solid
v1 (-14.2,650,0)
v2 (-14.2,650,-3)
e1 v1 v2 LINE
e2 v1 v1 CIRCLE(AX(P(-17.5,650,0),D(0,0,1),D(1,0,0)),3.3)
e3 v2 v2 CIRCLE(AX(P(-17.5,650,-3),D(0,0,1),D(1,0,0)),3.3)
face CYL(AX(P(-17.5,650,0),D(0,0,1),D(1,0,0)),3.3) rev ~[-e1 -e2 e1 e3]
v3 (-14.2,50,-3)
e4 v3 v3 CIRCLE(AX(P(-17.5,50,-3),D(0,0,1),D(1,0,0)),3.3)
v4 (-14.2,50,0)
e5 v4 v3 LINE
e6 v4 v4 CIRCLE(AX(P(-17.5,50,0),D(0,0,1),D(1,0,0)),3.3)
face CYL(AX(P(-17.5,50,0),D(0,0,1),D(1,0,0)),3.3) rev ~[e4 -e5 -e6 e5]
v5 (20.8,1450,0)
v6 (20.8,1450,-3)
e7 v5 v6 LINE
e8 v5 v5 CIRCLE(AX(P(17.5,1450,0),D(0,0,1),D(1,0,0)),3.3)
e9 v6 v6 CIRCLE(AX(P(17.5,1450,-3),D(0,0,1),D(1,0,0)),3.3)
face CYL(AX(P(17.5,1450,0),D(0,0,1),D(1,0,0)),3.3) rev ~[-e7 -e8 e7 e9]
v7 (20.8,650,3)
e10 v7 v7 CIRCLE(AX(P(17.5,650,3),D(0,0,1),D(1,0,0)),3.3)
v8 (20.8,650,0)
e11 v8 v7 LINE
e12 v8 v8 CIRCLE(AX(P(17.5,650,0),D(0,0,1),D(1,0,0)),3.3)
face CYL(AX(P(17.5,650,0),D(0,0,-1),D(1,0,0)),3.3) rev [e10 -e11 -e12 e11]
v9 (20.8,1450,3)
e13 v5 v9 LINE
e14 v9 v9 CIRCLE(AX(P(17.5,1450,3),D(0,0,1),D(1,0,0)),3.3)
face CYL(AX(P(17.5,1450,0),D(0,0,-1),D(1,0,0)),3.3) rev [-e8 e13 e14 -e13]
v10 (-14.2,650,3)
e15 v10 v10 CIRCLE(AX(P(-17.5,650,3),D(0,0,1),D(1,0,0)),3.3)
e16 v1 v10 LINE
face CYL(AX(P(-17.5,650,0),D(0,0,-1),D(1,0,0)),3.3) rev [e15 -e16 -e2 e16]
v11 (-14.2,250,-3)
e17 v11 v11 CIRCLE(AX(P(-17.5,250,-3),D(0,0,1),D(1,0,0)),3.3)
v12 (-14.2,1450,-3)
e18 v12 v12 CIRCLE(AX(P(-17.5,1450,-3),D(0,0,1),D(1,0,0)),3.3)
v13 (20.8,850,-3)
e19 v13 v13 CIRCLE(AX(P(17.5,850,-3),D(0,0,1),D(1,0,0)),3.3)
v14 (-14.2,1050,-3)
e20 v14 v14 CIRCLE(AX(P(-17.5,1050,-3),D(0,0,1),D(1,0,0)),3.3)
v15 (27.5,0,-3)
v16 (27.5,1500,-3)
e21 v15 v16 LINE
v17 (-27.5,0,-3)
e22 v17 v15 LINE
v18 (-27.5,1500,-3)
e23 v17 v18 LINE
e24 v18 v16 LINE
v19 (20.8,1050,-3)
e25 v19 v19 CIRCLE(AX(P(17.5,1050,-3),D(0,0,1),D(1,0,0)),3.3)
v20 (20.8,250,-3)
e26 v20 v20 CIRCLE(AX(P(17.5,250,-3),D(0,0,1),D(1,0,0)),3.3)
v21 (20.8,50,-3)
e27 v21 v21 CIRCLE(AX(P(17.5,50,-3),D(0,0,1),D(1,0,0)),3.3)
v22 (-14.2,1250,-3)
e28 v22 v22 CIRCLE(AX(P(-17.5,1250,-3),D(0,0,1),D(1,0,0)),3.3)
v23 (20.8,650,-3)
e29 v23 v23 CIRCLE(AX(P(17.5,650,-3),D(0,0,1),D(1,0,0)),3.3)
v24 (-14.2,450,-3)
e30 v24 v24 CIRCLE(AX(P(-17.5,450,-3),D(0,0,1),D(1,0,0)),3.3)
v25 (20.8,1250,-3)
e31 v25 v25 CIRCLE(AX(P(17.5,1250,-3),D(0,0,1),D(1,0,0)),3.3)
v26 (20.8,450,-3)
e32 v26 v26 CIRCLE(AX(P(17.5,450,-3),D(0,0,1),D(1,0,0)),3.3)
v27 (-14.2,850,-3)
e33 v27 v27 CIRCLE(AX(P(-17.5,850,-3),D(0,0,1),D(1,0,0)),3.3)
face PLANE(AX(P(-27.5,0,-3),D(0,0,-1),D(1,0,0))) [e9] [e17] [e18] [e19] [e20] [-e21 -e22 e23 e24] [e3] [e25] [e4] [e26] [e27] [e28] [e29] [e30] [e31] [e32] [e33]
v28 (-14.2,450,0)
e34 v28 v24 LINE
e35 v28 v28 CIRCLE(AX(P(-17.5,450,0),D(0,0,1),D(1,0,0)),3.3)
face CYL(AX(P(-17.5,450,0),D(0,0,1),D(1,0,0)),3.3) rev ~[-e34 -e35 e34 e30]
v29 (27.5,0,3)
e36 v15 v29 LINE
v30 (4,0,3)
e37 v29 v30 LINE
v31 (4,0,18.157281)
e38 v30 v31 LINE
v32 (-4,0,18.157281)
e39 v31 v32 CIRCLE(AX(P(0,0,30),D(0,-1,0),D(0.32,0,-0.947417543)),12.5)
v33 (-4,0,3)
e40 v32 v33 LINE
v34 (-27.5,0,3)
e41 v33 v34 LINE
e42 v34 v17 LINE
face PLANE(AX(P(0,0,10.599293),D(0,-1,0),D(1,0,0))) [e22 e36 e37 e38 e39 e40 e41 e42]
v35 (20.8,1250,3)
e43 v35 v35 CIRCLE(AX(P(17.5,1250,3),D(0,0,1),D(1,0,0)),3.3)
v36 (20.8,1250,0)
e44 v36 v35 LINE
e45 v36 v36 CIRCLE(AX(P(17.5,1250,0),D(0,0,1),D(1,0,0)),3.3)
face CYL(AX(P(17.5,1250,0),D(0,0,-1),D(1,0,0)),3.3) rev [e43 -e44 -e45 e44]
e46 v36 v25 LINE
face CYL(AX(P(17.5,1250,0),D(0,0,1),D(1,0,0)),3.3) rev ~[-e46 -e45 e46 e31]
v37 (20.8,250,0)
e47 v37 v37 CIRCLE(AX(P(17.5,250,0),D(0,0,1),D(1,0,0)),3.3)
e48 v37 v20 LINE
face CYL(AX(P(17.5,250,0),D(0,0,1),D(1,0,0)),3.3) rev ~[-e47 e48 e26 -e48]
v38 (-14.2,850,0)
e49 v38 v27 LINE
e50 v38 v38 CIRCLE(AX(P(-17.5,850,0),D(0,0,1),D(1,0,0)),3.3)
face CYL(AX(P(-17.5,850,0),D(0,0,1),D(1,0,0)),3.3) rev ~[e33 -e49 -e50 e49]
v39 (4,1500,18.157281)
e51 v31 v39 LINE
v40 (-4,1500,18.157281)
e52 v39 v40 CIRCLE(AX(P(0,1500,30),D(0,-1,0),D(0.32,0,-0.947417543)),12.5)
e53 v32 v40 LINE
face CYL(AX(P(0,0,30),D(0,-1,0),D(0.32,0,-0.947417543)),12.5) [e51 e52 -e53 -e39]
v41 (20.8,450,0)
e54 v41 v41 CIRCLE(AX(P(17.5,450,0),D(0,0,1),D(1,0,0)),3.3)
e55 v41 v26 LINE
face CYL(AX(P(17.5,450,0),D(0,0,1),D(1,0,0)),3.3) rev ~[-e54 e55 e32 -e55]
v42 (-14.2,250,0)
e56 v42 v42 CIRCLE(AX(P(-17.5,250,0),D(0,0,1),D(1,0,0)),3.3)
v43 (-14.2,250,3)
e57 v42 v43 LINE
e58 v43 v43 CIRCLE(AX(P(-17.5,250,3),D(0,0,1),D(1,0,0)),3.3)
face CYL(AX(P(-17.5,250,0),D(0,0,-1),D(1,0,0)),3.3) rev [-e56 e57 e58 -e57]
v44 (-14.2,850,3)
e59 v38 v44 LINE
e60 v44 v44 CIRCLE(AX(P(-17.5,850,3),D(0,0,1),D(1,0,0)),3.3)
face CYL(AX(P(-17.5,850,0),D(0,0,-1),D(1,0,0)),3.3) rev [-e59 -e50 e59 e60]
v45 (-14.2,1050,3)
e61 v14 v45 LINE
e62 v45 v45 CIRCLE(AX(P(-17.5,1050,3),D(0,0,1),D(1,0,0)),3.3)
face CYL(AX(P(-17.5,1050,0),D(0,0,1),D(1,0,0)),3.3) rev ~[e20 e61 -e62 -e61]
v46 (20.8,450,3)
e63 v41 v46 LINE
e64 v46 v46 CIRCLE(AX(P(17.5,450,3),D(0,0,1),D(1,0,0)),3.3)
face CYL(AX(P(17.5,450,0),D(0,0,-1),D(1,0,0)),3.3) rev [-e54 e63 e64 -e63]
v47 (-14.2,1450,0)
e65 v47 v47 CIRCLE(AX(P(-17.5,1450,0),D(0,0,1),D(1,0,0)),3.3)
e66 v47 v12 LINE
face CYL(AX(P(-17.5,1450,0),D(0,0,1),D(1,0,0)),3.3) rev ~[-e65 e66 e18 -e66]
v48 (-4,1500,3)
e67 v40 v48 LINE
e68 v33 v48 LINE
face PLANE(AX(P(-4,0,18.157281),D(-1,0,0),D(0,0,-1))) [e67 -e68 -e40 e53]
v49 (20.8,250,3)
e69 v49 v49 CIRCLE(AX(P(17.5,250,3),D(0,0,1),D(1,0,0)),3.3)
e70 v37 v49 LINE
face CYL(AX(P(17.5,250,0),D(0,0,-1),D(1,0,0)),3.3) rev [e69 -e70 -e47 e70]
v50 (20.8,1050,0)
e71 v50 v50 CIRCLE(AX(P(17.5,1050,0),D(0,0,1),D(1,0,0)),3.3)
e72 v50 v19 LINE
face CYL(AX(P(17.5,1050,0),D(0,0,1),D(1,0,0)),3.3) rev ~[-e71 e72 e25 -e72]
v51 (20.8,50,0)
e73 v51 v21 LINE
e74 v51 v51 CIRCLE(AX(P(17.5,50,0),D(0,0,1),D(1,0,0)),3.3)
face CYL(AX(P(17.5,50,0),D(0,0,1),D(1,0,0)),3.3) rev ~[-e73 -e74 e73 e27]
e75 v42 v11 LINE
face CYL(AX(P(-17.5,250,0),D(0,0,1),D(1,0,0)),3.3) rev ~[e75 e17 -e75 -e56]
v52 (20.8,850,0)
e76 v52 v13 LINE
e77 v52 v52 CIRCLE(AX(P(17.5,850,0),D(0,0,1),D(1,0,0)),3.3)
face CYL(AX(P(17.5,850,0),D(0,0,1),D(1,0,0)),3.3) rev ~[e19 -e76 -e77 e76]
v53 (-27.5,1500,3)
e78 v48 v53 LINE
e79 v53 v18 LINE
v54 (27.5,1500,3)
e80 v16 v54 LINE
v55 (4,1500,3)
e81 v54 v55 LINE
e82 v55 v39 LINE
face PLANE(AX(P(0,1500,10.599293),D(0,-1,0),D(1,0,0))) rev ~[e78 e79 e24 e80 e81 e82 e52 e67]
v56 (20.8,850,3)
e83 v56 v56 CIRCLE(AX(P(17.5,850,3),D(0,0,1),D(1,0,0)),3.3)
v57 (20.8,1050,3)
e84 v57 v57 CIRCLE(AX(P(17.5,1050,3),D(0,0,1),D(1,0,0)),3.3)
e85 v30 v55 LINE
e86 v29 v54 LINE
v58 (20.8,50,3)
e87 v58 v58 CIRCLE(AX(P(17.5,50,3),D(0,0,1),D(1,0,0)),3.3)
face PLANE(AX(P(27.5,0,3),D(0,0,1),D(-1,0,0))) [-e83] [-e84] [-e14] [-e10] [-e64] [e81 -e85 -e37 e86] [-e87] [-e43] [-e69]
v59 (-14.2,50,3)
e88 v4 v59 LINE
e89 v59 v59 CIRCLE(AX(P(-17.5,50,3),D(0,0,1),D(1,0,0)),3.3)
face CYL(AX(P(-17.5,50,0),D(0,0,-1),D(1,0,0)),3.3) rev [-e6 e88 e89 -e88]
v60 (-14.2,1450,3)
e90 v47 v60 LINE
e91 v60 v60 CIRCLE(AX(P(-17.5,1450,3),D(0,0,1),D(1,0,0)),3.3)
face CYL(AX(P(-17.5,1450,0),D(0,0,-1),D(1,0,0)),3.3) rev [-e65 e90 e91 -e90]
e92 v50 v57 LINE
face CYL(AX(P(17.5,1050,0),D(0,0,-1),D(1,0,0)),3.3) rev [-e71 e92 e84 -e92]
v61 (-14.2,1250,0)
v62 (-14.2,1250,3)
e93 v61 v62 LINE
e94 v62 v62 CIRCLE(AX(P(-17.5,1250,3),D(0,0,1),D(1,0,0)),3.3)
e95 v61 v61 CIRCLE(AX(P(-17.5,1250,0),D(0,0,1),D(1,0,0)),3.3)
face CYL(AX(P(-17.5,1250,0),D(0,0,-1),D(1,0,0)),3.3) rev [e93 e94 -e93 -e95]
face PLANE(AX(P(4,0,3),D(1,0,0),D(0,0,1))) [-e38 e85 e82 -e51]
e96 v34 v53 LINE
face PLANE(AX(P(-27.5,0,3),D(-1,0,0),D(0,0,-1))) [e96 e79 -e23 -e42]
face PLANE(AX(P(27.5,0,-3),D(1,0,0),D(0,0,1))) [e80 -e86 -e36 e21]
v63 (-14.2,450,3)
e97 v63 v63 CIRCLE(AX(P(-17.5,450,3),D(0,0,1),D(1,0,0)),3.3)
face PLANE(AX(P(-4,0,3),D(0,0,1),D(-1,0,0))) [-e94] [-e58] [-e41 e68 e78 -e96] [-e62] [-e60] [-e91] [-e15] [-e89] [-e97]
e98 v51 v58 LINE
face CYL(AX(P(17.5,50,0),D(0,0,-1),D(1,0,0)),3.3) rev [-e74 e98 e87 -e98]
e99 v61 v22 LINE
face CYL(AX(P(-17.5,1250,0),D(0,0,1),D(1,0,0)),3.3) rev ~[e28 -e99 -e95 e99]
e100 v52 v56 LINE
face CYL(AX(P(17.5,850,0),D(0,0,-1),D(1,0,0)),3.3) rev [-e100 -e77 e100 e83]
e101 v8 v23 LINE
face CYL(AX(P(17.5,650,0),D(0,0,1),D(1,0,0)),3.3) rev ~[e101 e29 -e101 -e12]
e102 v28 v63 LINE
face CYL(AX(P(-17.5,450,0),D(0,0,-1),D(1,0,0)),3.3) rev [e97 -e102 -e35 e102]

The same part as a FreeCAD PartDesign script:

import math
import FreeCAD as App
import Part
import Sketcher

V = App.Vector
Q = App.Units.Quantity

doc = App.newDocument("Part")
params = doc.addObject("Spreadsheet::Sheet", "Params")
for row, (alias, value) in enumerate([
    ("sketch1_radius", "12.5 mm"),
    ("sketch1_width", "55 mm"),
    ("sketch1_height", "6 mm"),
    ("sketch1_width2", "23.5 mm"),
    ("pad1_length", "1500 mm"),
    ("sketch2_diameter", "6.6 mm"),
    ("pocket1_length", "6 mm"),
], start=1):
    params.set(f"A{row}", alias)
    params.set(f"B{row}", "=" + value)
    params.setAlias(f"B{row}", alias)

body = doc.addObject("PartDesign::Body", "Body")

# Sketch on XZ plane
sketch1 = body.newObject("Sketcher::SketchObject", "Sketch")
sketch1.AttachmentSupport = (doc.getObject("XZ_Plane"), [""])
sketch1.MapMode = "FlatFace"
sketch1.addGeometry([
    Part.LineSegment(V(28, -3, 0), V(28, 3, 0)),  # 0
    Part.LineSegment(V(28, 3, 0), V(4, 3, 0)),  # 1
    Part.LineSegment(V(4, 3, 0), V(4, 18, 0)),  # 2
    Part.ArcOfCircle(Part.Circle(V(0, 30, 0), V(0, 0, 1), 12), math.radians(-71), math.radians(251)),  # 3
    Part.LineSegment(V(-4, 18, 0), V(-4, 3, 0)),  # 4
    Part.LineSegment(V(-4, 3, 0), V(-28, 3, 0)),  # 5
    Part.LineSegment(V(-28, 3, 0), V(-28, -3, 0)),  # 6
    Part.LineSegment(V(-28, -3, 0), V(28, -3, 0)),  # 7
], False)
sketch1.addConstraint([
    Sketcher.Constraint("Coincident", 0, 2, 1, 1),
    Sketcher.Constraint("Coincident", 1, 2, 2, 1),
    Sketcher.Constraint("Coincident", 2, 2, 3, 1),
    Sketcher.Constraint("Coincident", 3, 2, 4, 1),
    Sketcher.Constraint("Coincident", 4, 2, 5, 1),
    Sketcher.Constraint("Coincident", 5, 2, 6, 1),
    Sketcher.Constraint("Coincident", 6, 2, 7, 1),
    Sketcher.Constraint("Coincident", 7, 2, 0, 1),
    Sketcher.Constraint("Vertical", 0),
    Sketcher.Constraint("Horizontal", 1),
    Sketcher.Constraint("Vertical", 2),
    Sketcher.Constraint("Vertical", 4),
    Sketcher.Constraint("Horizontal", 5),
    Sketcher.Constraint("Vertical", 6),
    Sketcher.Constraint("Horizontal", 7),
    Sketcher.Constraint("Symmetric", 0, 2, 6, 2, -1, 1),
    Sketcher.Constraint("Symmetric", 2, 2, 3, 2, -2),
    Sketcher.Constraint("Horizontal", 1, 2, 4, 2),
    Sketcher.Constraint("Radius", 3, Q("12.5 mm")),
    Sketcher.Constraint("DistanceX", 7, 1, 7, 2, Q("55 mm")),
    Sketcher.Constraint("DistanceY", 0, 1, 0, 2, Q("6 mm")),
    Sketcher.Constraint("DistanceX", 1, 2, 1, 1, Q("23.5 mm")),
    Sketcher.Constraint("DistanceY", -1, 1, 3, 3, Q("30 mm")),
])
sketch1.setExpression("Constraints[18]", "Params.sketch1_radius")
sketch1.setExpression("Constraints[19]", "Params.sketch1_width")
sketch1.setExpression("Constraints[20]", "Params.sketch1_height")
sketch1.setExpression("Constraints[21]", "Params.sketch1_width2")
pad1 = body.newObject("PartDesign::Pad", "Pad")
pad1.Profile = sketch1
pad1.setExpression("Length", "Params.pad1_length")
pad1.Reversed = True

# Sketch on XY plane
sketch2 = body.newObject("Sketcher::SketchObject", "Sketch001")
sketch2.AttachmentSupport = (doc.getObject("XY_Plane"), [""])
sketch2.MapMode = "FlatFace"
sketch2.addGeometry([
    Part.Circle(V(17.5, 50, 0), V(0, 0, 1), 3.3),  # 0
    Part.Circle(V(17.5, 250, 0), V(0, 0, 1), 3.3),  # 1
    Part.Circle(V(17.5, 1050, 0), V(0, 0, 1), 3.3),  # 2
    Part.Circle(V(17.5, 450, 0), V(0, 0, 1), 3.3),  # 3
    Part.Circle(V(17.5, 650, 0), V(0, 0, 1), 3.3),  # 4
    Part.Circle(V(17.5, 850, 0), V(0, 0, 1), 3.3),  # 5
    Part.Circle(V(17.5, 1250, 0), V(0, 0, 1), 3.3),  # 6
    Part.Circle(V(17.5, 1450, 0), V(0, 0, 1), 3.3),  # 7
    Part.Circle(V(-17.5, 50, 0), V(0, 0, 1), 3.3),  # 8
    Part.Circle(V(-17.5, 250, 0), V(0, 0, 1), 3.3),  # 9
    Part.Circle(V(-17.5, 450, 0), V(0, 0, 1), 3.3),  # 10
    Part.Circle(V(-17.5, 650, 0), V(0, 0, 1), 3.3),  # 11
    Part.Circle(V(-17.5, 850, 0), V(0, 0, 1), 3.3),  # 12
    Part.Circle(V(-17.5, 1450, 0), V(0, 0, 1), 3.3),  # 13
    Part.Circle(V(-17.5, 1250, 0), V(0, 0, 1), 3.3),  # 14
    Part.Circle(V(-17.5, 1050, 0), V(0, 0, 1), 3.3),  # 15
], False)
sketch2.addConstraint([
    Sketcher.Constraint("Equal", 0, 1),
    Sketcher.Constraint("Equal", 1, 2),
    Sketcher.Constraint("Equal", 2, 3),
    Sketcher.Constraint("Equal", 3, 4),
    Sketcher.Constraint("Equal", 4, 5),
    Sketcher.Constraint("Equal", 5, 6),
    Sketcher.Constraint("Equal", 6, 7),
    Sketcher.Constraint("Equal", 7, 8),
    Sketcher.Constraint("Equal", 8, 9),
    Sketcher.Constraint("Equal", 9, 10),
    Sketcher.Constraint("Equal", 10, 11),
    Sketcher.Constraint("Equal", 11, 12),
    Sketcher.Constraint("Equal", 12, 13),
    Sketcher.Constraint("Equal", 13, 14),
    Sketcher.Constraint("Equal", 14, 15),
    Sketcher.Constraint("Symmetric", 0, 3, 8, 3, -2),
    Sketcher.Constraint("Symmetric", 1, 3, 9, 3, -2),
    Sketcher.Constraint("Symmetric", 3, 3, 10, 3, -2),
    Sketcher.Constraint("Symmetric", 4, 3, 11, 3, -2),
    Sketcher.Constraint("Symmetric", 5, 3, 12, 3, -2),
    Sketcher.Constraint("Symmetric", 7, 3, 13, 3, -2),
    Sketcher.Constraint("Symmetric", 6, 3, 14, 3, -2),
    Sketcher.Constraint("Symmetric", 2, 3, 15, 3, -2),
    Sketcher.Constraint("Vertical", 0, 3, 1, 3),
    Sketcher.Constraint("Vertical", 1, 3, 2, 3),
    Sketcher.Constraint("Vertical", 2, 3, 3, 3),
    Sketcher.Constraint("Vertical", 3, 3, 4, 3),
    Sketcher.Constraint("Vertical", 4, 3, 5, 3),
    Sketcher.Constraint("Vertical", 5, 3, 6, 3),
    Sketcher.Constraint("Vertical", 6, 3, 7, 3),
    Sketcher.Constraint("Diameter", 0, Q("6.6 mm")),
    Sketcher.Constraint("DistanceY", -1, 1, 0, 3, Q("50 mm")),
    Sketcher.Constraint("DistanceY", -1, 1, 1, 3, Q("250 mm")),
    Sketcher.Constraint("DistanceY", -1, 1, 2, 3, Q("1050 mm")),
    Sketcher.Constraint("DistanceY", -1, 1, 3, 3, Q("450 mm")),
    Sketcher.Constraint("DistanceY", -1, 1, 4, 3, Q("650 mm")),
    Sketcher.Constraint("DistanceY", -1, 1, 5, 3, Q("850 mm")),
    Sketcher.Constraint("DistanceY", -1, 1, 6, 3, Q("1250 mm")),
    Sketcher.Constraint("DistanceY", -1, 1, 7, 3, Q("1450 mm")),
    Sketcher.Constraint("DistanceX", 8, 3, 0, 3, Q("35 mm")),
])
sketch2.setExpression("Constraints[30]", "Params.sketch2_diameter")
pocket1 = body.newObject("PartDesign::Pocket", "Pocket")
pocket1.Profile = sketch2
pocket1.setExpression("Length", "Params.pocket1_length")
pocket1.Midplane = True

doc.recompute()
